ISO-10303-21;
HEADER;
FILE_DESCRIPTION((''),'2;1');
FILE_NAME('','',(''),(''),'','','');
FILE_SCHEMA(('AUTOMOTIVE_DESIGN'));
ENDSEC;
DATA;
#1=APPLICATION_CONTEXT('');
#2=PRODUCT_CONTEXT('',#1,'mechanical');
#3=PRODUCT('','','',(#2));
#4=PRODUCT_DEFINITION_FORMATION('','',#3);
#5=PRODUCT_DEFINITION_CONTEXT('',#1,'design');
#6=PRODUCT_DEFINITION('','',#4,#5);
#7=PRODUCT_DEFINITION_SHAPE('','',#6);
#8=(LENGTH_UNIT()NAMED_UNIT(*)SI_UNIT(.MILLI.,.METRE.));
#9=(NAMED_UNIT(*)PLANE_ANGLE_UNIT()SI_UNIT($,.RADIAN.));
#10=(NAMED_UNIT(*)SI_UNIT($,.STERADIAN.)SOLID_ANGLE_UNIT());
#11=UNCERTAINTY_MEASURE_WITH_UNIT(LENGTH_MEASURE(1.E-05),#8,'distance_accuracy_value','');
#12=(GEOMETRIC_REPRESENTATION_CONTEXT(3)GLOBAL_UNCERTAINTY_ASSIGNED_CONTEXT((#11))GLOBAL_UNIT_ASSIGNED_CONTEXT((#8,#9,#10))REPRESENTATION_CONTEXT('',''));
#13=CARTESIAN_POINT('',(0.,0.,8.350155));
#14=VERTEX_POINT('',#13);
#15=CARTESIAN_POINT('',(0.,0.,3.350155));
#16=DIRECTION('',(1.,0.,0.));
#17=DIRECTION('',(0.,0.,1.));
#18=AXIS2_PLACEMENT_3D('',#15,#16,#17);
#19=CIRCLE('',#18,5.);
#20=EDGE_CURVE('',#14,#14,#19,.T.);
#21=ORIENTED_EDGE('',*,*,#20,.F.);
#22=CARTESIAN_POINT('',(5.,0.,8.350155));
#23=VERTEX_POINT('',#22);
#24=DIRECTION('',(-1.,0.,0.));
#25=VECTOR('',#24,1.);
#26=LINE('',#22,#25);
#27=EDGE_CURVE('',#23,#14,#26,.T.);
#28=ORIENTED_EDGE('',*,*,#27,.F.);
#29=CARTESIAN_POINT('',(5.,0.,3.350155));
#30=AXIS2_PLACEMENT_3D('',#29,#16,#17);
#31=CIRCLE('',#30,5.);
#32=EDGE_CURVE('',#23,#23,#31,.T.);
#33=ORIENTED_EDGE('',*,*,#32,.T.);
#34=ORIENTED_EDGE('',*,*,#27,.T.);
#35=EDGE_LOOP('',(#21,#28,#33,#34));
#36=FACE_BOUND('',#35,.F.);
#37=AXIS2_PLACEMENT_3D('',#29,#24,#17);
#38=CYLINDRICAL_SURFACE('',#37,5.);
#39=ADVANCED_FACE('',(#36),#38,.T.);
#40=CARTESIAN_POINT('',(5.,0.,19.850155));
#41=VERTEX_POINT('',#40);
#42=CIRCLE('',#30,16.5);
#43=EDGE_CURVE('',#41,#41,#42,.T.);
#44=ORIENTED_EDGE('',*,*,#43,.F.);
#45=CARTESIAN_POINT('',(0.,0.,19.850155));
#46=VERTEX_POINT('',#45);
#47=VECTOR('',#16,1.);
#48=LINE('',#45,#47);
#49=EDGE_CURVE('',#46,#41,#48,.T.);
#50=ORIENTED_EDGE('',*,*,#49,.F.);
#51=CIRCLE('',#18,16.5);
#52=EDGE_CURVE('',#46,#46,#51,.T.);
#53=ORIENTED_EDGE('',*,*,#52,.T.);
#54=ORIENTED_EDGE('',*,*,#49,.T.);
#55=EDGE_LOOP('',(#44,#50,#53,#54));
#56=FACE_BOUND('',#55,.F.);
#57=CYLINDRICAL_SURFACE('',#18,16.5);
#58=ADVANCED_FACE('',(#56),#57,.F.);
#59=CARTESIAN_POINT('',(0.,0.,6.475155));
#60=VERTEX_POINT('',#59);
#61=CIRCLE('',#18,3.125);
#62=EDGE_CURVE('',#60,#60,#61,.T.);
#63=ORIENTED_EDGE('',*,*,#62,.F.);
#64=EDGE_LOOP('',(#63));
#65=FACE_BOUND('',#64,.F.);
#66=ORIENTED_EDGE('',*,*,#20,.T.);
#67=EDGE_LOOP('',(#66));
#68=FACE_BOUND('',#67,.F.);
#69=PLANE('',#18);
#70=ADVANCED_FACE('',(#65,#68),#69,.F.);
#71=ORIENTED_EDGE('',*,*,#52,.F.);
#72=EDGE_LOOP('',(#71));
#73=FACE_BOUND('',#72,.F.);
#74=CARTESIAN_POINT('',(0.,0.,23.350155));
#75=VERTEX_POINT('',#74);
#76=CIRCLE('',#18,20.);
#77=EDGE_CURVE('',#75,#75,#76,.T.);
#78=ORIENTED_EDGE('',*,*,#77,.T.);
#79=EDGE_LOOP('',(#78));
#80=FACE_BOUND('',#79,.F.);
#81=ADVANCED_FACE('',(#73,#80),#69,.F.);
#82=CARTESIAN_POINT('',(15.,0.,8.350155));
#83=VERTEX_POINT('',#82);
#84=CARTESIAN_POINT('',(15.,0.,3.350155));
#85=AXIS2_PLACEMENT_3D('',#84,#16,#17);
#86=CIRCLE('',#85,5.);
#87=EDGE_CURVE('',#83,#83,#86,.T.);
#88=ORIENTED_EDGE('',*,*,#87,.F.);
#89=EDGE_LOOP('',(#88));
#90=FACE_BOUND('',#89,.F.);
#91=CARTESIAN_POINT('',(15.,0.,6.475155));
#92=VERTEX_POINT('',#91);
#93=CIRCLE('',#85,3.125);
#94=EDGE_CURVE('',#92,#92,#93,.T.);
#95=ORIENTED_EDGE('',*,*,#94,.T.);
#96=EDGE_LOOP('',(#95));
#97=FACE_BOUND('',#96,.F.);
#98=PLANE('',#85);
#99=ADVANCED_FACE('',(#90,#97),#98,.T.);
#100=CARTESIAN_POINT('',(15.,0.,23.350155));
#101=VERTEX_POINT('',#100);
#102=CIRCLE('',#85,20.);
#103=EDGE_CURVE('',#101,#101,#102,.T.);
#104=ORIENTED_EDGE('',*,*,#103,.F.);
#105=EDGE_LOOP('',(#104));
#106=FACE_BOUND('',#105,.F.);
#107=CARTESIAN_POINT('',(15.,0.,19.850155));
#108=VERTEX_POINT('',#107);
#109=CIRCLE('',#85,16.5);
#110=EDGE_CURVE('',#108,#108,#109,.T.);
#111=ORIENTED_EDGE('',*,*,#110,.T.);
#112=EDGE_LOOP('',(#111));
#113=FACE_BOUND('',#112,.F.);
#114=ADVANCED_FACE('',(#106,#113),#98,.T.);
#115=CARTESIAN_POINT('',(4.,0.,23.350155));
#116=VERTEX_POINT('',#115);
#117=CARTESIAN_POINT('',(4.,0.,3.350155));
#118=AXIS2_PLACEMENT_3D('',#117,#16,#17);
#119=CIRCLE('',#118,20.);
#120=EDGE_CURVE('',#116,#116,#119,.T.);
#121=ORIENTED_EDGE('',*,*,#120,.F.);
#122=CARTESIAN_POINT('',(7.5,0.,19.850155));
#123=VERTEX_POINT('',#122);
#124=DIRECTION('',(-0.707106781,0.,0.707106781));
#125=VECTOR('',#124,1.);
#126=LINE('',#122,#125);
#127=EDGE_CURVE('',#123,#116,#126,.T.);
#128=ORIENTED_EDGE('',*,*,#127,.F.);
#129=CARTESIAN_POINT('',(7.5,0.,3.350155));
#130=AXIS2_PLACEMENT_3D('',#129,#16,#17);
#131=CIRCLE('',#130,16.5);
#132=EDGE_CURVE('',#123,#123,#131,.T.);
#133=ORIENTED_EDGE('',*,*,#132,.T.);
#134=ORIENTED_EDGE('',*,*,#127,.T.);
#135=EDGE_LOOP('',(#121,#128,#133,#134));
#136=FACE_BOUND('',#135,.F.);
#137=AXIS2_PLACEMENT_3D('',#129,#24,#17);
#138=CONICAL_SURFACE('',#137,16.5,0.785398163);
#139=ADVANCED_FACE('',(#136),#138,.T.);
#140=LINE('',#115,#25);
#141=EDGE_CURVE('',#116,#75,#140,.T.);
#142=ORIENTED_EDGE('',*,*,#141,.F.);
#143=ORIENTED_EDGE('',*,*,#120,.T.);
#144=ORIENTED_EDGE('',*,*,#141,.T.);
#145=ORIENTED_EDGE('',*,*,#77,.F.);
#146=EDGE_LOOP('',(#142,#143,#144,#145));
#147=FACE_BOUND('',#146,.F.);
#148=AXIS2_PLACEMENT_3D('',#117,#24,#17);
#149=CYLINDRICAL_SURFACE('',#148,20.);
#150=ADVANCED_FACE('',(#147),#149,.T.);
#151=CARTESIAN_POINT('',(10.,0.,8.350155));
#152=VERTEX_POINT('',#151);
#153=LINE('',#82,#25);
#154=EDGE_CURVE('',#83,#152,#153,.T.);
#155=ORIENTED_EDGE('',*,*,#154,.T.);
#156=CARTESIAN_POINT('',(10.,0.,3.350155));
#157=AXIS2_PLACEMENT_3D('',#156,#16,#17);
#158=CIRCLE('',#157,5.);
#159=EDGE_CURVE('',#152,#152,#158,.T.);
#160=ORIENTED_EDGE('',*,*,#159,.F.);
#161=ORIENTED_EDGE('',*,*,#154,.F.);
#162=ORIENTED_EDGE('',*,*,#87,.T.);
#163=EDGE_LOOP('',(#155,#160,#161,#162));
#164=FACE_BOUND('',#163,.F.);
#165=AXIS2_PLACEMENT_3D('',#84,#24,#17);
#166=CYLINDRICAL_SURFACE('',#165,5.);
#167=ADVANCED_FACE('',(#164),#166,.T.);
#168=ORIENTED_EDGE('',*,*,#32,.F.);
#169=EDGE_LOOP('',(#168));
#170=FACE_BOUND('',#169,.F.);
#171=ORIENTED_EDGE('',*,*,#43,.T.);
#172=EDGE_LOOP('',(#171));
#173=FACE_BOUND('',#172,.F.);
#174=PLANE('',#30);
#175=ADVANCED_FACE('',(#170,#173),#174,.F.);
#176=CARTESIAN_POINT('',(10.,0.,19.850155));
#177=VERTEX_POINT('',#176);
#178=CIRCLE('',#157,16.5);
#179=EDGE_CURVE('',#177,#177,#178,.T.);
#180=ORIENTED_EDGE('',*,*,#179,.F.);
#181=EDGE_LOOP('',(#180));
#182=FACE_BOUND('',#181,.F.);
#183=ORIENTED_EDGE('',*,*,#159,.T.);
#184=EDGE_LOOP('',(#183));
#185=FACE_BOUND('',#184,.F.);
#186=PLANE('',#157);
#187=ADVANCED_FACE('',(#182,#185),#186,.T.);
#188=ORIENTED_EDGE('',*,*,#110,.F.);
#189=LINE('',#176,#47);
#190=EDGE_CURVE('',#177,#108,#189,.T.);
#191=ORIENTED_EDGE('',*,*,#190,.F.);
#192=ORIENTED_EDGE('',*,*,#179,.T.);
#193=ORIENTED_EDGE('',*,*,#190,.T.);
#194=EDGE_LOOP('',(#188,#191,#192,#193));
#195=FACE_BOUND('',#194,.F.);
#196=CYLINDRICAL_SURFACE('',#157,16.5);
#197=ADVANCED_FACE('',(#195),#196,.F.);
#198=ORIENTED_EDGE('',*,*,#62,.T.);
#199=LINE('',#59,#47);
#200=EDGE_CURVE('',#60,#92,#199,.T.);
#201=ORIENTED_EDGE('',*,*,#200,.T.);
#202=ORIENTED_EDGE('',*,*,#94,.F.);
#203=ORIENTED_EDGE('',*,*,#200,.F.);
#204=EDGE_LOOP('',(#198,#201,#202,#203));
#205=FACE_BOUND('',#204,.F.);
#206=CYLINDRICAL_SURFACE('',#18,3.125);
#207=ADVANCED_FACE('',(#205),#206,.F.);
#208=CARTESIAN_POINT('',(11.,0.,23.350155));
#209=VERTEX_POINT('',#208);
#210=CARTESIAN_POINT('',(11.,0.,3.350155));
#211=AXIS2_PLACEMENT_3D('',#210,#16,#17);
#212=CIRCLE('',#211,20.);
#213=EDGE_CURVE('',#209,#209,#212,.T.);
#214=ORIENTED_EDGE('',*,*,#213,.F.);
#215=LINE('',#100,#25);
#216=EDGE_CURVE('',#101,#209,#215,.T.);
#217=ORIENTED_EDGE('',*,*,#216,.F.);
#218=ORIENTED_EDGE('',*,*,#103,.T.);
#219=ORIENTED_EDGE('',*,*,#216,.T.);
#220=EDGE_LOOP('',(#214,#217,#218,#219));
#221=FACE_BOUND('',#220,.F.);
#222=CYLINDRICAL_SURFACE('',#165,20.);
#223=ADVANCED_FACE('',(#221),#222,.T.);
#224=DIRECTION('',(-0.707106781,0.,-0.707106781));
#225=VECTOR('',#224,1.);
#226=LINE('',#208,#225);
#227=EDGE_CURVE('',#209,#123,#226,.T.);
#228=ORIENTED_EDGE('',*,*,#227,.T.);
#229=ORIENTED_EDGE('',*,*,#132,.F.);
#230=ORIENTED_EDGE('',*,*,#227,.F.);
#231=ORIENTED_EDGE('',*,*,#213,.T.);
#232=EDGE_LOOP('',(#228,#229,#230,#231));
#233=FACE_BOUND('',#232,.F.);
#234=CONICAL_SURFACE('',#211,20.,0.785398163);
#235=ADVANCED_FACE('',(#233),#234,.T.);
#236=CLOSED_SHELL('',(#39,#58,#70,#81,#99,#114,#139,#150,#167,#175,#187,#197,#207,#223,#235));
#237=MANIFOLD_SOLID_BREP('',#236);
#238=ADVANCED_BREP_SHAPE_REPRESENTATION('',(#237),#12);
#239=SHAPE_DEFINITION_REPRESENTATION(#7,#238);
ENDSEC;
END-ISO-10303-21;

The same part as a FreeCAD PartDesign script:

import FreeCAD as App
import Part
import Sketcher
from FreeCAD import Vector


def add_polygon(sketch, points):
    """Adds a closed chain of lines whose ends are joined by coincident constraints."""
    first, n = sketch.GeometryCount, len(points)
    for a, b in zip(points, points[1:] + points[:1]):
        sketch.addGeometry(Part.LineSegment(App.Vector(*a, 0), App.Vector(*b, 0)), False)
    for i in range(n):
        sketch.addConstraint(Sketcher.Constraint("Coincident", first + i, 2, first + (i + 1) % n, 1))

doc = App.newDocument("Part")
params = doc.addObject("Spreadsheet::Sheet", "Params")
for row, (alias, value) in enumerate([
    ("sketch1_width", "15 mm"),
    ("sketch1_width2", "5 mm"),
    ("sketch1_width3", "4 mm"),
    ("sketch1_height", "11.5 mm"),
    ("revolution_angle", "360 deg"),
], start=1):
    params.set(f"A{row}", alias)
    params.set(f"B{row}", "=" + value)
    params.setAlias(f"B{row}", alias)

body = doc.addObject("PartDesign::Body", "Body")

# Sketch on XZ plane
sketch1 = doc.addObject("Sketcher::SketchObject", "Sketch")
body.addObject(sketch1)
sketch1.AttachmentSupport = (doc.XZ_Plane, [""])
sketch1.MapMode = "FlatFace"
add_polygon(sketch1, [(15, 6.5), (0, 6.5), (0, 8.4), (5, 8.4), (5, 19.9), (0, 19.9), (0, 23.4), (4, 23.4), (7.5, 19.9), (11, 23.4), (15, 23.4), (15, 19.9), (10, 19.9), (10, 8.4), (15, 8.4)])  # lines 0-14
sketch1.addGeometry(Part.LineSegment(Vector(0, 3.4, 0), Vector(15, 3.4, 0)), True)  # axis
sketch1.addConstraint(Sketcher.Constraint("Horizontal", 0))
sketch1.addConstraint(Sketcher.Constraint("Vertical", 1))
sketch1.addConstraint(Sketcher.Constraint("Horizontal", 2))
sketch1.addConstraint(Sketcher.Constraint("Vertical", 3))
sketch1.addConstraint(Sketcher.Constraint("Horizontal", 4))
sketch1.addConstraint(Sketcher.Constraint("Vertical", 5))
sketch1.addConstraint(Sketcher.Constraint("Horizontal", 6))
sketch1.addConstraint(Sketcher.Constraint("Horizontal", 9))
sketch1.addConstraint(Sketcher.Constraint("Vertical", 10))
sketch1.addConstraint(Sketcher.Constraint("Horizontal", 11))
sketch1.addConstraint(Sketcher.Constraint("Vertical", 12))
sketch1.addConstraint(Sketcher.Constraint("Horizontal", 13))
sketch1.addConstraint(Sketcher.Constraint("Vertical", 14))
sketch1.addConstraint(Sketcher.Constraint("Horizontal", 15))
sketch1.addConstraint(Sketcher.Constraint("PointOnObject", 0, 2, -2))
sketch1.addConstraint(Sketcher.Constraint("PointOnObject", 4, 2, -2))
sketch1.addConstraint(Sketcher.Constraint("PointOnObject", 15, 1, -2))
sketch1.addConstraint(Sketcher.Constraint("Perpendicular", 7, 8))
sketch1.addConstraint(Sketcher.Constraint("Horizontal", 4, 2, 7, 2))
sketch1.addConstraint(Sketcher.Constraint("Horizontal", 6, 2, 8, 2))
sketch1.addConstraint(Sketcher.Constraint("Horizontal", 7, 2, 10, 2))
sketch1.addConstraint(Sketcher.Constraint("Horizontal", 2, 2, 12, 2))
sketch1.addConstraint(Sketcher.Constraint("Vertical", 10, 2, 13, 2))
sketch1.addConstraint(Sketcher.Constraint("Vertical", 14, 2, 15, 2))
sketch1.addConstraint(Sketcher.Constraint("Equal", 6, 9))
sketch1.addConstraint(Sketcher.Constraint("Equal", 4, 11))
sketch1.addConstraint(Sketcher.Constraint("Equal", 7, 8))
sketch1.addConstraint(Sketcher.Constraint("DistanceX", 0, 2, 0, 1, 15.0))
sketch1.addConstraint(Sketcher.Constraint("DistanceX", 2, 1, 2, 2, 5.0))
sketch1.addConstraint(Sketcher.Constraint("DistanceX", 6, 1, 6, 2, 4.0))
sketch1.addConstraint(Sketcher.Constraint("DistanceY", 3, 1, 3, 2, 11.5))
sketch1.addConstraint(Sketcher.Constraint("DistanceY", 15, 1, 1, 2, 5.0))
sketch1.addConstraint(Sketcher.Constraint("DistanceY", 1, 1, 1, 2, 1.875))
sketch1.addConstraint(Sketcher.Constraint("DistanceY", -1, 1, 0, 2, 6.475155))
sketch1.setExpression("Constraints[42]", "Params.sketch1_width")
sketch1.setExpression("Constraints[43]", "Params.sketch1_width2")
sketch1.setExpression("Constraints[44]", "Params.sketch1_width3")
sketch1.setExpression("Constraints[45]", "Params.sketch1_height")
revolution = doc.addObject("PartDesign::Revolution", "Revolution")
body.addObject(revolution)
revolution.Profile = sketch1
revolution.ReferenceAxis = (sketch1, ["Axis0"])
revolution.setExpression("Angle", "Params.revolution_angle")

doc.recompute()
